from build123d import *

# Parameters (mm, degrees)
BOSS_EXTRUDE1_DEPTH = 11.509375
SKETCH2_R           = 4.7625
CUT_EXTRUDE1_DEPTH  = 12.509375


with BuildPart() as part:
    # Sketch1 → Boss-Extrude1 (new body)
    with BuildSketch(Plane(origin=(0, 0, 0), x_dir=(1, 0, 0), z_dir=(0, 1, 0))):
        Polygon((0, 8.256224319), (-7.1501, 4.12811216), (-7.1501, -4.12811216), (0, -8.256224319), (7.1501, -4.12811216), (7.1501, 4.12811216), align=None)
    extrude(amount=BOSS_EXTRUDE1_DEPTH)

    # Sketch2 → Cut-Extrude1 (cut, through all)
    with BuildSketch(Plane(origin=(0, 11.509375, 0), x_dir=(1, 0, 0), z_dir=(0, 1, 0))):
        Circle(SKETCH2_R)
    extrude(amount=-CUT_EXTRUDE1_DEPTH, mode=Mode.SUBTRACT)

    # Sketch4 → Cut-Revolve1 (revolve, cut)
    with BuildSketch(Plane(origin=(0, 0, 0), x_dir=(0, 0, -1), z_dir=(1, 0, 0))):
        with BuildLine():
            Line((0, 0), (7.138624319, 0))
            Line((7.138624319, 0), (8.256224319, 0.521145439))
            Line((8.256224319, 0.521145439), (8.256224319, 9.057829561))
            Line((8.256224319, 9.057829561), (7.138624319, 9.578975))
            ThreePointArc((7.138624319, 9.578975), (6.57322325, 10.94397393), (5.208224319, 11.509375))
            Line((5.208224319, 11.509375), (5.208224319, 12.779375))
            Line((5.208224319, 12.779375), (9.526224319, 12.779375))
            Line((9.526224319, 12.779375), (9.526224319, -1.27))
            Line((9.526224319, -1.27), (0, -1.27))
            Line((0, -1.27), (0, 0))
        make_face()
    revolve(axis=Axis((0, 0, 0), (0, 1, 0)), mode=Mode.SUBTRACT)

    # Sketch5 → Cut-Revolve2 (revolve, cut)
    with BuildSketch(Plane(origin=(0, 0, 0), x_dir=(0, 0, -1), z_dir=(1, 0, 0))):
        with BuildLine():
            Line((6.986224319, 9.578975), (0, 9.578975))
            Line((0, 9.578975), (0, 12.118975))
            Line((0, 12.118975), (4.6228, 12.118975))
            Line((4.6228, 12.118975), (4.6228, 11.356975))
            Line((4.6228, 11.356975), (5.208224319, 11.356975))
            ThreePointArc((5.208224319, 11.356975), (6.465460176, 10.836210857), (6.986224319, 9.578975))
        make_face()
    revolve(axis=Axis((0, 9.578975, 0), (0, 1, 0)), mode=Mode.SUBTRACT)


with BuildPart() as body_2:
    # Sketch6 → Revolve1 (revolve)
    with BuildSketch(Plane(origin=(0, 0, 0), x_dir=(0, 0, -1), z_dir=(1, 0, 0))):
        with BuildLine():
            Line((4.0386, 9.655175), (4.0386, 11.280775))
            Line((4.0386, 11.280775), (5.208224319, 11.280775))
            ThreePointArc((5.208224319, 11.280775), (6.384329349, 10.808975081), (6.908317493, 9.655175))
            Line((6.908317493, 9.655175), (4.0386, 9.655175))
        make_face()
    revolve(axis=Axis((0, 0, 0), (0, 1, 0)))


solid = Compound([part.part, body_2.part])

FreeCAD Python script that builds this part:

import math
import FreeCAD as App
import Part
import Sketcher

V = App.Vector
Q = App.Units.Quantity


def add_polygon(sketch, points):
    """Adds a closed chain of lines whose ends are joined by coincident constraints."""
    first, n = sketch.GeometryCount, len(points)
    for a, b in zip(points, points[1:] + points[:1]):
        sketch.addGeometry(Part.LineSegment(App.Vector(*a, 0), App.Vector(*b, 0)), False)
    for i in range(n):
        sketch.addConstraint(Sketcher.Constraint("Coincident", first + i, 2, first + (i + 1) % n, 1))

doc = App.newDocument("Part")
body = doc.addObject("PartDesign::Body", "Body")

# Sketch on XZ plane
sketch1 = body.newObject("Sketcher::SketchObject", "Sketch")
sketch1.AttachmentSupport = (doc.getObject("XZ_Plane"), [""])
sketch1.MapMode = "FlatFace"
add_polygon(sketch1, [(0, -8), (-7, -4), (-7, 4), (0, 8), (7, 4), (7, -4)])  # lines 0-5
sketch1.addConstraint([
    Sketcher.Constraint("Vertical", 1),
    Sketcher.Constraint("Vertical", 4),
    Sketcher.Constraint("Symmetric", 0, 2, 3, 2, -1, 1),
    Sketcher.Constraint("Symmetric", 2, 2, 5, 2, -1, 1),
    Sketcher.Constraint("PointOnObject", 2, 2, -2),
    Sketcher.Constraint("Parallel", 2, 5),
    Sketcher.Constraint("Horizontal", 1, 2, 3, 2),
    Sketcher.Constraint("Angle", 0, Q("150 deg")),
    Sketcher.Constraint("DistanceX", 1, 2, 3, 2, Q("0.563 in")),
    Sketcher.Constraint("DistanceY", 1, 1, 1, 2, 8.256224),
])
pad1 = body.newObject("PartDesign::Pad", "Pad")
pad1.Profile = sketch1
pad1.Length = Q("0.453125 in")
pad1.Reversed = True

# Sketch on XZ plane
sketch2 = body.newObject("Sketcher::SketchObject", "Sketch001")
sketch2.AttachmentSupport = (doc.getObject("XZ_Plane"), [""])
sketch2.MapMode = "FlatFace"
sketch2.AttachmentOffset = App.Placement(V(0, 0, -0.453125 * 25.4), App.Rotation())
sketch2.addGeometry(Part.Circle(V(0, 0, 0), V(0, 0, 1), 4.8), False)
sketch2.addConstraint([
    Sketcher.Constraint("Coincident", 0, 3, -1, 1),
    Sketcher.Constraint("Diameter", 0, Q("0.375 in")),
])
pocket1 = body.newObject("PartDesign::Pocket", "Pocket")
pocket1.Profile = sketch2
pocket1.Type = "ThroughAll"
pocket1.Reversed = True

# Sketch on YZ plane
sketch3 = body.newObject("Sketcher::SketchObject", "Sketch002")
sketch3.AttachmentSupport = (doc.getObject("YZ_Plane"), [""])
sketch3.MapMode = "FlatFace"
sketch3.addGeometry([
    Part.LineSegment(V(0, -7.1, 0), V(0, 0, 0)),  # 0
    Part.LineSegment(V(0, 0, 0), V(-1.3, 0, 0)),  # 1
    Part.LineSegment(V(-1.3, 0, 0), V(-1.3, -9.5, 0)),  # 2
    Part.LineSegment(V(-1.3, -9.5, 0), V(12.8, -9.5, 0)),  # 3
    Part.LineSegment(V(12.8, -9.5, 0), V(12.8, -5.2, 0)),  # 4
    Part.LineSegment(V(12.8, -5.2, 0), V(11.5, -5.2, 0)),  # 5
    Part.ArcOfCircle(Part.Circle(V(9.6, -5.2, 0), V(0, 0, 1), 1.9), math.radians(-90), math.radians(0)),  # 6
    Part.LineSegment(V(9.6, -7.1, 0), V(9.1, -8.3, 0)),  # 7
    Part.LineSegment(V(9.1, -8.3, 0), V(0.5, -8.3, 0)),  # 8
    Part.LineSegment(V(0.5, -8.3, 0), V(0, -7.1, 0)),  # 9
], False)
sketch3.addConstraint([
    Sketcher.Constraint("Coincident", 0, 2, 1, 1),
    Sketcher.Constraint("Coincident", 1, 2, 2, 1),
    Sketcher.Constraint("Coincident", 2, 2, 3, 1),
    Sketcher.Constraint("Coincident", 3, 2, 4, 1),
    Sketcher.Constraint("Coincident", 4, 2, 5, 1),
    Sketcher.Constraint("Coincident", 5, 2, 6, 2),
    Sketcher.Constraint("Coincident", 6, 1, 7, 1),
    Sketcher.Constraint("Coincident", 7, 2, 8, 1),
    Sketcher.Constraint("Coincident", 8, 2, 9, 1),
    Sketcher.Constraint("Coincident", 9, 2, 0, 1),
    Sketcher.Constraint("Vertical", 0),
    Sketcher.Constraint("Horizontal", 1),
    Sketcher.Constraint("Vertical", 2),
    Sketcher.Constraint("Horizontal", 3),
    Sketcher.Constraint("Vertical", 4),
    Sketcher.Constraint("Horizontal", 5),
    Sketcher.Constraint("Horizontal", 8),
    Sketcher.Constraint("Coincident", 0, 2, -1, 1),
    Sketcher.Constraint("Horizontal", 6, 3, 4, 2),
    Sketcher.Constraint("Horizontal", 6, 1, 9, 2),
    Sketcher.Constraint("Equal", 1, 5),
    Sketcher.Constraint("Equal", 7, 9),
    Sketcher.Constraint("Angle", 7, Q("-115 deg")),
    Sketcher.Constraint("Radius", 6, Q("0.076 in")),
    Sketcher.Constraint("DistanceX", 1, 2, 1, 1, Q("0.05 in")),
    Sketcher.Constraint("DistanceY", 4, 1, 4, 2, Q("0.17 in")),
    Sketcher.Constraint("DistanceY", 7, 2, 6, 3, Q("0.12 in")),
    Sketcher.Constraint("DistanceX", -1, 1, 5, 2, Q("0.453125 in")),
    Sketcher.Constraint("DistanceX", 6, 1, 5, 2, Q("0.076 in")),
    Sketcher.Constraint("DistanceY", 0, 1, 0, 2, 7.138624),
])
groove = body.newObject("PartDesign::Groove", "Groove")
groove.Profile = sketch3
groove.ReferenceAxis = (sketch3, ["H_Axis"])
groove.Angle = 360

# Sketch on YZ plane
sketch4 = body.newObject("Sketcher::SketchObject", "Sketch003")
sketch4.AttachmentSupport = (doc.getObject("YZ_Plane"), [""])
sketch4.MapMode = "FlatFace"
sketch4.addGeometry([
    Part.LineSegment(V(9.6, 0, 0), V(9.6, -7, 0)),  # 0
    Part.ArcOfCircle(Part.Circle(V(9.6, -5.2, 0), V(0, 0, 1), 1.8), math.radians(-90), math.radians(0)),  # 1
    Part.LineSegment(V(11.4, -5.2, 0), V(11.4, -4.6, 0)),  # 2
    Part.LineSegment(V(11.4, -4.6, 0), V(12.1, -4.6, 0)),  # 3
    Part.LineSegment(V(12.1, -4.6, 0), V(12.1, 0, 0)),  # 4
    Part.LineSegment(V(12.1, 0, 0), V(9.6, 0, 0)),  # 5
], False)
sketch4.addConstraint([
    Sketcher.Constraint("Coincident", 0, 2, 1, 1),
    Sketcher.Constraint("Tangent", 1, 2, 2, 1),
    Sketcher.Constraint("Coincident", 2, 2, 3, 1),
    Sketcher.Constraint("Coincident", 3, 2, 4, 1),
    Sketcher.Constraint("Coincident", 4, 2, 5, 1),
    Sketcher.Constraint("Coincident", 5, 2, 0, 1),
    Sketcher.Constraint("Vertical", 0),
    Sketcher.Constraint("Vertical", 2),
    Sketcher.Constraint("Horizontal", 3),
    Sketcher.Constraint("Vertical", 4),
    Sketcher.Constraint("Horizontal", 5),
    Sketcher.Constraint("PointOnObject", 4, 2, -1),
    Sketcher.Constraint("Vertical", 1, 3, 0, 2),
    Sketcher.Constraint("Radius", 1, Q("0.07 in")),
    Sketcher.Constraint("DistanceX", 5, 2, 5, 1, Q("0.1 in")),
    Sketcher.Constraint("DistanceY", 4, 1, 4, 2, Q("0.182 in")),
    Sketcher.Constraint("DistanceY", 0, 2, 0, 1, 6.986224),
    Sketcher.Constraint("DistanceX", -1, 1, 1, 3, 9.578975),
])
groove2 = body.newObject("PartDesign::Groove", "Groove001")
groove2.Profile = sketch4
groove2.ReferenceAxis = (sketch4, ["H_Axis"])
groove2.Angle = 360
body2 = doc.addObject("PartDesign::Body", "Body001")

# Sketch on YZ plane
sketch5 = body2.newObject("Sketcher::SketchObject", "Sketch004")
sketch5.AttachmentSupport = (doc.getObject("YZ_Plane001"), [""])
sketch5.MapMode = "FlatFace"
sketch5.addGeometry([
    Part.LineSegment(V(11.3, -4, 0), V(9.7, -4, 0)),
    Part.LineSegment(V(9.7, -4, 0), V(9.7, -6.9, 0)),
    Part.ArcOfCircle(Part.Circle(V(9.6, -5.2, 0), V(0, 0, 1), 1.7), math.radians(-87), math.radians(0)),
    Part.LineSegment(V(11.3, -5.2, 0), V(11.3, -4, 0)),
], False)
sketch5.addConstraint([
    Sketcher.Constraint("Coincident", 0, 2, 1, 1),
    Sketcher.Constraint("Coincident", 1, 2, 2, 1),
    Sketcher.Constraint("Tangent", 2, 2, 3, 1),
    Sketcher.Constraint("Coincident", 3, 2, 0, 1),
    Sketcher.Constraint("Horizontal", 0),
    Sketcher.Constraint("Vertical", 1),
    Sketcher.Constraint("Vertical", 3),
    Sketcher.Constraint("Radius", 2, Q("0.067 in")),
    Sketcher.Constraint("DistanceX", 0, 2, 0, 1, Q("0.064 in")),
    Sketcher.Constraint("DistanceY", 0, 2, -1, 1, Q("0.159 in")),
    Sketcher.Constraint("DistanceY", 1, 2, 1, 1, 2.869717),
    Sketcher.Constraint("DistanceX", -1, 1, 2, 3, 9.578975),
])
revolution = body2.newObject("PartDesign::Revolution", "Revolution")
revolution.Profile = sketch5
revolution.ReferenceAxis = (sketch5, ["H_Axis"])
revolution.Angle = 360

doc.recompute()
